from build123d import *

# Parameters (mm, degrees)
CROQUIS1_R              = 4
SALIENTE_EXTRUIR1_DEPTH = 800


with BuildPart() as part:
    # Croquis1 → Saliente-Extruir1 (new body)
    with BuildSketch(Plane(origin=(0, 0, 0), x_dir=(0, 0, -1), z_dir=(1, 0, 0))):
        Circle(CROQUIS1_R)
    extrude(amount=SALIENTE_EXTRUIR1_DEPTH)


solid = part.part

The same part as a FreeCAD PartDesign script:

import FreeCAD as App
import Part
import Sketcher
Q = App.Units.Quantity

doc = App.newDocument("Part")
body = doc.addObject("PartDesign::Body", "Body")

sketch1 = doc.addObject("Sketcher::SketchObject", "Sketch")
body.addObject(sketch1)
sketch1.AttachmentSupport = (doc.YZ_Plane, [""])
sketch1.MapMode = "FlatFace"
sketch1.addGeometry(Part.Circle(App.Vector(0, 0, 0), App.Vector(0, 0, 1), 4), False)
sketch1.addConstraint([
    Sketcher.Constraint("Coincident", 0, 3, -1, 1),
    Sketcher.Constraint("Diameter", 0, Q("8 mm")),
])
pad1 = doc.addObject("PartDesign::Pad", "Pad")
body.addObject(pad1)
pad1.Profile = sketch1
pad1.Length = 800

doc.recompute()
